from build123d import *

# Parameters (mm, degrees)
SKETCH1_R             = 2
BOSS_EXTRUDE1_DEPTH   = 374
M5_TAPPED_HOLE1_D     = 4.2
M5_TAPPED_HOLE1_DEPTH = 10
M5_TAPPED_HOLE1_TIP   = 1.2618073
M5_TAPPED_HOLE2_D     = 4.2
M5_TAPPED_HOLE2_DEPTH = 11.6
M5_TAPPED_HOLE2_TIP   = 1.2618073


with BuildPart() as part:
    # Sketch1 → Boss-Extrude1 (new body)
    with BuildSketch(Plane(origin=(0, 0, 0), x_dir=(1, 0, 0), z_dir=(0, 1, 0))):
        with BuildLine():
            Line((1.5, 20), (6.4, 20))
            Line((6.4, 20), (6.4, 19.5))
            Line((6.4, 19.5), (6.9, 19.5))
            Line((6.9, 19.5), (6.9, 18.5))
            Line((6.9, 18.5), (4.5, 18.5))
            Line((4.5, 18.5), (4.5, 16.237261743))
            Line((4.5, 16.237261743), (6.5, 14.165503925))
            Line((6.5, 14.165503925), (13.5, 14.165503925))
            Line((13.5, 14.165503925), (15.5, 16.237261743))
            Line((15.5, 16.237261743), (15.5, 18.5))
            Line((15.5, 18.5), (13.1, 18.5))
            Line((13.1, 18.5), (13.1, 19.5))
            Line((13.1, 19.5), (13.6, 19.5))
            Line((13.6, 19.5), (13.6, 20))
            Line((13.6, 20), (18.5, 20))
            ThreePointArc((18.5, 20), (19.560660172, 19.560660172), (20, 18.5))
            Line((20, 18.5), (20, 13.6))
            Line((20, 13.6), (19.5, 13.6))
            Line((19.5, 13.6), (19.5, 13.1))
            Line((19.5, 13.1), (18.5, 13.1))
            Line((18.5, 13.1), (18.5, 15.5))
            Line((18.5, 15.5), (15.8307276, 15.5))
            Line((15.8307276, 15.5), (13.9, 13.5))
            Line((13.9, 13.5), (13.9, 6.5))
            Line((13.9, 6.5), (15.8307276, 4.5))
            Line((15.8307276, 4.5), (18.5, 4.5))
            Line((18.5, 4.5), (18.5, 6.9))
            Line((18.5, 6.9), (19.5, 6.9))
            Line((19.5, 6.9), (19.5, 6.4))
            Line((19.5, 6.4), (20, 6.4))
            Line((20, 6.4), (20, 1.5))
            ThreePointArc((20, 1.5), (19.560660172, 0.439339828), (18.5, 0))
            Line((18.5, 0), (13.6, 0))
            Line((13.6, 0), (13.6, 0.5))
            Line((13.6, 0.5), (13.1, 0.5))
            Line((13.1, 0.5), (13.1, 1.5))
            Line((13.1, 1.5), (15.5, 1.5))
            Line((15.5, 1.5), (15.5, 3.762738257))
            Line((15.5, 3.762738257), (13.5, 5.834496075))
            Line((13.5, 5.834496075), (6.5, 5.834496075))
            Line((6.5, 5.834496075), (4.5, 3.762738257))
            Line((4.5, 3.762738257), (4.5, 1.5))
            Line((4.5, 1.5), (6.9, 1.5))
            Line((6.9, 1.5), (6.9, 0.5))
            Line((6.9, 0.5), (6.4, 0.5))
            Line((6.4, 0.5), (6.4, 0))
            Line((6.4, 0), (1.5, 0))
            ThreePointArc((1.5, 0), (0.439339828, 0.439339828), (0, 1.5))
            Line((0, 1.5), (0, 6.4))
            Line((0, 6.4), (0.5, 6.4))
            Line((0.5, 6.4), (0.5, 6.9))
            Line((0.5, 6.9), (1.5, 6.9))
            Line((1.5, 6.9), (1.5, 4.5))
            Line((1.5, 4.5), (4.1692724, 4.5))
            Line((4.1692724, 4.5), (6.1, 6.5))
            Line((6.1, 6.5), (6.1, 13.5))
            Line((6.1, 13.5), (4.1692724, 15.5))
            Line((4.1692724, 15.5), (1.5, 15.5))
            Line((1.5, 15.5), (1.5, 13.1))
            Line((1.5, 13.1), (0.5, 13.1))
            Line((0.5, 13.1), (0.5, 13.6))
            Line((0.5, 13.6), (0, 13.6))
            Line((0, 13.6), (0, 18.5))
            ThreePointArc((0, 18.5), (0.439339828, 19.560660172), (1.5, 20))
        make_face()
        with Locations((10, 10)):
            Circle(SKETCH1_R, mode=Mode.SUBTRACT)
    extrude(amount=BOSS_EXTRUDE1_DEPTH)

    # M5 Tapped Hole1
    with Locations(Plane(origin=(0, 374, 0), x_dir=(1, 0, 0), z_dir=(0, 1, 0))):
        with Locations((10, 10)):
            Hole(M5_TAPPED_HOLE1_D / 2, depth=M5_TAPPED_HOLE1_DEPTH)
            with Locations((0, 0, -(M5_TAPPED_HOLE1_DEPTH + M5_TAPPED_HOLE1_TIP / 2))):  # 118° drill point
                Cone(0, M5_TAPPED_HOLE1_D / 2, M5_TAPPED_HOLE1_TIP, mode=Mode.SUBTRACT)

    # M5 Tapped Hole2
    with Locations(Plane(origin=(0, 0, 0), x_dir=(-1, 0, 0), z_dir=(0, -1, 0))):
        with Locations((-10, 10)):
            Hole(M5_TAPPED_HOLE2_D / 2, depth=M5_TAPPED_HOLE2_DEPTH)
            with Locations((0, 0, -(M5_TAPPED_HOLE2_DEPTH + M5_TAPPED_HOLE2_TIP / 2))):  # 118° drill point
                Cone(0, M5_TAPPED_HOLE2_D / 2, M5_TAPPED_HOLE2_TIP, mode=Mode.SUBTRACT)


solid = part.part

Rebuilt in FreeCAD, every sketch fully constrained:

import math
import FreeCAD as App
import Part
import Sketcher
from FreeCAD import Vector

doc = App.newDocument("Part")
body = doc.addObject("PartDesign::Body", "Body")

# Sketch on XZ plane
sketch1 = body.newObject("Sketcher::SketchObject", "Sketch")
sketch1.AttachmentSupport = (doc.getObject("XZ_Plane"), [""])
sketch1.MapMode = "FlatFace"
sketch1.addGeometry([
    Part.LineSegment(Vector(6.4, -20, 0), Vector(1.5, -20, 0)),  # 0
    Part.ArcOfCircle(Part.Circle(Vector(1.5, -18.5, 0), Vector(0, 0, 1), 1.5), math.radians(180), math.radians(270)),  # 1
    Part.LineSegment(Vector(0, -18.5, 0), Vector(0, -13.6, 0)),  # 2
    Part.LineSegment(Vector(0, -13.6, 0), Vector(0.5, -13.6, 0)),  # 3
    Part.LineSegment(Vector(0.5, -13.6, 0), Vector(0.5, -13.1, 0)),  # 4
    Part.LineSegment(Vector(0.5, -13.1, 0), Vector(1.5, -13.1, 0)),  # 5
    Part.LineSegment(Vector(1.5, -13.1, 0), Vector(1.5, -15.5, 0)),  # 6
    Part.LineSegment(Vector(1.5, -15.5, 0), Vector(4.169272, -15.5, 0)),  # 7
    Part.LineSegment(Vector(4.169272, -15.5, 0), Vector(6.1, -13.5, 0)),  # 8
    Part.LineSegment(Vector(6.1, -13.5, 0), Vector(6.1, -6.5, 0)),  # 9
    Part.LineSegment(Vector(6.1, -6.5, 0), Vector(4.169272, -4.5, 0)),  # 10
    Part.LineSegment(Vector(4.169272, -4.5, 0), Vector(1.5, -4.5, 0)),  # 11
    Part.LineSegment(Vector(1.5, -4.5, 0), Vector(1.5, -6.9, 0)),  # 12
    Part.LineSegment(Vector(1.5, -6.9, 0), Vector(0.5, -6.9, 0)),  # 13
    Part.LineSegment(Vector(0.5, -6.9, 0), Vector(0.5, -6.4, 0)),  # 14
    Part.LineSegment(Vector(0.5, -6.4, 0), Vector(0, -6.4, 0)),  # 15
    Part.LineSegment(Vector(0, -6.4, 0), Vector(0, -1.5, 0)),  # 16
    Part.ArcOfCircle(Part.Circle(Vector(1.5, -1.5, 0), Vector(0, 0, 1), 1.5), math.radians(90), math.radians(180)),  # 17
    Part.LineSegment(Vector(1.5, 0, 0), Vector(6.4, 0, 0)),  # 18
    Part.LineSegment(Vector(6.4, 0, 0), Vector(6.4, -0.5, 0)),  # 19
    Part.LineSegment(Vector(6.4, -0.5, 0), Vector(6.9, -0.5, 0)),  # 20
    Part.LineSegment(Vector(6.9, -0.5, 0), Vector(6.9, -1.5, 0)),  # 21
    Part.LineSegment(Vector(6.9, -1.5, 0), Vector(4.5, -1.5, 0)),  # 22
    Part.LineSegment(Vector(4.5, -1.5, 0), Vector(4.5, -3.762738, 0)),  # 23
    Part.LineSegment(Vector(4.5, -3.762738, 0), Vector(6.5, -5.834496, 0)),  # 24
    Part.LineSegment(Vector(6.5, -5.834496, 0), Vector(13.5, -5.834496, 0)),  # 25
    Part.LineSegment(Vector(13.5, -5.834496, 0), Vector(15.5, -3.762738, 0)),  # 26
    Part.LineSegment(Vector(15.5, -3.762738, 0), Vector(15.5, -1.5, 0)),  # 27
    Part.LineSegment(Vector(15.5, -1.5, 0), Vector(13.1, -1.5, 0)),  # 28
    Part.LineSegment(Vector(13.1, -1.5, 0), Vector(13.1, -0.5, 0)),  # 29
    Part.LineSegment(Vector(13.1, -0.5, 0), Vector(13.6, -0.5, 0)),  # 30
    Part.LineSegment(Vector(13.6, -0.5, 0), Vector(13.6, 0, 0)),  # 31
    Part.LineSegment(Vector(13.6, 0, 0), Vector(18.5, 0, 0)),  # 32
    Part.ArcOfCircle(Part.Circle(Vector(18.5, -1.5, 0), Vector(0, 0, 1), 1.5), math.radians(0), math.radians(90)),  # 33
    Part.LineSegment(Vector(20, -1.5, 0), Vector(20, -6.4, 0)),  # 34
    Part.LineSegment(Vector(20, -6.4, 0), Vector(19.5, -6.4, 0)),  # 35
    Part.LineSegment(Vector(19.5, -6.4, 0), Vector(19.5, -6.9, 0)),  # 36
    Part.LineSegment(Vector(19.5, -6.9, 0), Vector(18.5, -6.9, 0)),  # 37
    Part.LineSegment(Vector(18.5, -6.9, 0), Vector(18.5, -4.5, 0)),  # 38
    Part.LineSegment(Vector(18.5, -4.5, 0), Vector(15.830728, -4.5, 0)),  # 39
    Part.LineSegment(Vector(15.830728, -4.5, 0), Vector(13.9, -6.5, 0)),  # 40
    Part.LineSegment(Vector(13.9, -6.5, 0), Vector(13.9, -13.5, 0)),  # 41
    Part.LineSegment(Vector(13.9, -13.5, 0), Vector(15.830728, -15.5, 0)),  # 42
    Part.LineSegment(Vector(15.830728, -15.5, 0), Vector(18.5, -15.5, 0)),  # 43
    Part.LineSegment(Vector(18.5, -15.5, 0), Vector(18.5, -13.1, 0)),  # 44
    Part.LineSegment(Vector(18.5, -13.1, 0), Vector(19.5, -13.1, 0)),  # 45
    Part.LineSegment(Vector(19.5, -13.1, 0), Vector(19.5, -13.6, 0)),  # 46
    Part.LineSegment(Vector(19.5, -13.6, 0), Vector(20, -13.6, 0)),  # 47
    Part.LineSegment(Vector(20, -13.6, 0), Vector(20, -18.5, 0)),  # 48
    Part.ArcOfCircle(Part.Circle(Vector(18.5, -18.5, 0), Vector(0, 0, 1), 1.5), math.radians(-90), math.radians(0)),  # 49
    Part.LineSegment(Vector(18.5, -20, 0), Vector(13.6, -20, 0)),  # 50
    Part.LineSegment(Vector(13.6, -20, 0), Vector(13.6, -19.5, 0)),  # 51
    Part.LineSegment(Vector(13.6, -19.5, 0), Vector(13.1, -19.5, 0)),  # 52
    Part.LineSegment(Vector(13.1, -19.5, 0), Vector(13.1, -18.5, 0)),  # 53
    Part.LineSegment(Vector(13.1, -18.5, 0), Vector(15.5, -18.5, 0)),  # 54
    Part.LineSegment(Vector(15.5, -18.5, 0), Vector(15.5, -16.237262, 0)),  # 55
    Part.LineSegment(Vector(15.5, -16.237262, 0), Vector(13.5, -14.165504, 0)),  # 56
    Part.LineSegment(Vector(13.5, -14.165504, 0), Vector(6.5, -14.165504, 0)),  # 57
    Part.LineSegment(Vector(6.5, -14.165504, 0), Vector(4.5, -16.237262, 0)),  # 58
    Part.LineSegment(Vector(4.5, -16.237262, 0), Vector(4.5, -18.5, 0)),  # 59
    Part.LineSegment(Vector(4.5, -18.5, 0), Vector(6.9, -18.5, 0)),  # 60
    Part.LineSegment(Vector(6.9, -18.5, 0), Vector(6.9, -19.5, 0)),  # 61
    Part.LineSegment(Vector(6.9, -19.5, 0), Vector(6.4, -19.5, 0)),  # 62
    Part.LineSegment(Vector(6.4, -19.5, 0), Vector(6.4, -20, 0)),  # 63
    Part.Circle(Vector(10, -10, 0), Vector(0, 0, 1), 2),  # 64
], False)
sketch1.addConstraint([
    Sketcher.Constraint("Tangent", 0, 2, 1, 2),
    Sketcher.Constraint("Tangent", 1, 1, 2, 1),
    Sketcher.Constraint("Coincident", 2, 2, 3, 1),
    Sketcher.Constraint("Coincident", 3, 2, 4, 1),
    Sketcher.Constraint("Coincident", 4, 2, 5, 1),
    Sketcher.Constraint("Coincident", 5, 2, 6, 1),
    Sketcher.Constraint("Coincident", 6, 2, 7, 1),
    Sketcher.Constraint("Coincident", 7, 2, 8, 1),
    Sketcher.Constraint("Coincident", 8, 2, 9, 1),
    Sketcher.Constraint("Coincident", 9, 2, 10, 1),
    Sketcher.Constraint("Coincident", 10, 2, 11, 1),
    Sketcher.Constraint("Coincident", 11, 2, 12, 1),
    Sketcher.Constraint("Coincident", 12, 2, 13, 1),
    Sketcher.Constraint("Coincident", 13, 2, 14, 1),
    Sketcher.Constraint("Coincident", 14, 2, 15, 1),
    Sketcher.Constraint("Coincident", 15, 2, 16, 1),
    Sketcher.Constraint("Tangent", 16, 2, 17, 2),
    Sketcher.Constraint("Tangent", 17, 1, 18, 1),
    Sketcher.Constraint("Coincident", 18, 2, 19, 1),
    Sketcher.Constraint("Coincident", 19, 2, 20, 1),
    Sketcher.Constraint("Coincident", 20, 2, 21, 1),
    Sketcher.Constraint("Coincident", 21, 2, 22, 1),
    Sketcher.Constraint("Coincident", 22, 2, 23, 1),
    Sketcher.Constraint("Coincident", 23, 2, 24, 1),
    Sketcher.Constraint("Coincident", 24, 2, 25, 1),
    Sketcher.Constraint("Coincident", 25, 2, 26, 1),
    Sketcher.Constraint("Coincident", 26, 2, 27, 1),
    Sketcher.Constraint("Coincident", 27, 2, 28, 1),
    Sketcher.Constraint("Coincident", 28, 2, 29, 1),
    Sketcher.Constraint("Coincident", 29, 2, 30, 1),
    Sketcher.Constraint("Coincident", 30, 2, 31, 1),
    Sketcher.Constraint("Coincident", 31, 2, 32, 1),
    Sketcher.Constraint("Tangent", 32, 2, 33, 2),
    Sketcher.Constraint("Tangent", 33, 1, 34, 1),
    Sketcher.Constraint("Coincident", 34, 2, 35, 1),
    Sketcher.Constraint("Coincident", 35, 2, 36, 1),
    Sketcher.Constraint("Coincident", 36, 2, 37, 1),
    Sketcher.Constraint("Coincident", 37, 2, 38, 1),
    Sketcher.Constraint("Coincident", 38, 2, 39, 1),
    Sketcher.Constraint("Coincident", 39, 2, 40, 1),
    Sketcher.Constraint("Coincident", 40, 2, 41, 1),
    Sketcher.Constraint("Coincident", 41, 2, 42, 1),
    Sketcher.Constraint("Coincident", 42, 2, 43, 1),
    Sketcher.Constraint("Coincident", 43, 2, 44, 1),
    Sketcher.Constraint("Coincident", 44, 2, 45, 1),
    Sketcher.Constraint("Coincident", 45, 2, 46, 1),
    Sketcher.Constraint("Coincident", 46, 2, 47, 1),
    Sketcher.Constraint("Coincident", 47, 2, 48, 1),
    Sketcher.Constraint("Tangent", 48, 2, 49, 2),
    Sketcher.Constraint("Tangent", 49, 1, 50, 1),
    Sketcher.Constraint("Coincident", 50, 2, 51, 1),
    Sketcher.Constraint("Coincident", 51, 2, 52, 1),
    Sketcher.Constraint("Coincident", 52, 2, 53, 1),
    Sketcher.Constraint("Coincident", 53, 2, 54, 1),
    Sketcher.Constraint("Coincident", 54, 2, 55, 1),
    Sketcher.Constraint("Coincident", 55, 2, 56, 1),
    Sketcher.Constraint("Coincident", 56, 2, 57, 1),
    Sketcher.Constraint("Coincident", 57, 2, 58, 1),
    Sketcher.Constraint("Coincident", 58, 2, 59, 1),
    Sketcher.Constraint("Coincident", 59, 2, 60, 1),
    Sketcher.Constraint("Coincident", 60, 2, 61, 1),
    Sketcher.Constraint("Coincident", 61, 2, 62, 1),
    Sketcher.Constraint("Coincident", 62, 2, 63, 1),
    Sketcher.Constraint("Coincident", 63, 2, 0, 1),
    Sketcher.Constraint("Horizontal", 0),
    Sketcher.Constraint("Vertical", 2),
    Sketcher.Constraint("Horizontal", 3),
    Sketcher.Constraint("Vertical", 4),
    Sketcher.Constraint("Horizontal", 5),
    Sketcher.Constraint("Vertical", 6),
    Sketcher.Constraint("Horizontal", 7),
    Sketcher.Constraint("Vertical", 9),
    Sketcher.Constraint("Horizontal", 11),
    Sketcher.Constraint("Vertical", 12),
    Sketcher.Constraint("Horizontal", 13),
    Sketcher.Constraint("Vertical", 14),
    Sketcher.Constraint("Horizontal", 15),
    Sketcher.Constraint("Vertical", 16),
    Sketcher.Constraint("Horizontal", 18),
    Sketcher.Constraint("Vertical", 19),
    Sketcher.Constraint("Horizontal", 20),
    Sketcher.Constraint("Vertical", 21),
    Sketcher.Constraint("Horizontal", 22),
    Sketcher.Constraint("Vertical", 23),
    Sketcher.Constraint("Horizontal", 25),
    Sketcher.Constraint("Vertical", 27),
    Sketcher.Constraint("Horizontal", 28),
    Sketcher.Constraint("Vertical", 29),
    Sketcher.Constraint("Horizontal", 30),
    Sketcher.Constraint("Vertical", 31),
    Sketcher.Constraint("Horizontal", 32),
    Sketcher.Constraint("Vertical", 34),
    Sketcher.Constraint("Horizontal", 35),
    Sketcher.Constraint("Vertical", 36),
    Sketcher.Constraint("Horizontal", 37),
    Sketcher.Constraint("Vertical", 38),
    Sketcher.Constraint("Horizontal", 39),
    Sketcher.Constraint("Vertical", 41),
    Sketcher.Constraint("Horizontal", 43),
    Sketcher.Constraint("Vertical", 44),
    Sketcher.Constraint("Horizontal", 45),
    Sketcher.Constraint("Vertical", 46),
    Sketcher.Constraint("Horizontal", 47),
    Sketcher.Constraint("Vertical", 48),
    Sketcher.Constraint("Horizontal", 50),
    Sketcher.Constraint("Vertical", 51),
    Sketcher.Constraint("Horizontal", 52),
    Sketcher.Constraint("Vertical", 53),
    Sketcher.Constraint("Horizontal", 54),
    Sketcher.Constraint("Vertical", 55),
    Sketcher.Constraint("Horizontal", 57),
    Sketcher.Constraint("Vertical", 59),
    Sketcher.Constraint("Horizontal", 60),
    Sketcher.Constraint("Vertical", 61),
    Sketcher.Constraint("Horizontal", 62),
    Sketcher.Constraint("Vertical", 63),
    Sketcher.Constraint("Equal", 1, 17),
    Sketcher.Constraint("Equal", 17, 33),
    Sketcher.Constraint("Equal", 33, 49),
    Sketcher.Constraint("PointOnObject", 1, 1, -2),
    Sketcher.Constraint("PointOnObject", 15, 2, -2),
    Sketcher.Constraint("PointOnObject", 17, 1, -1),
    Sketcher.Constraint("PointOnObject", 31, 2, -1),
    Sketcher.Constraint("Parallel", 10, 24),
    Sketcher.Constraint("Parallel", 8, 26),
    Sketcher.Constraint("Parallel", 26, 40),
    Sketcher.Constraint("Parallel", 24, 42),
    Sketcher.Constraint("Parallel", 42, 56),
    Sketcher.Constraint("Parallel", 40, 58),
    Sketcher.Constraint("Horizontal", 1, 3, 49, 3),
    Sketcher.Constraint("Horizontal", 16, 2, 21, 2),
    Sketcher.Constraint("Horizontal", 23, 2, 26, 2),
    Sketcher.Constraint("Horizontal", 22, 2, 27, 2),
    Sketcher.Constraint("Horizontal", 20, 2, 29, 2),
    Sketcher.Constraint("Horizontal", 15, 2, 34, 2),
    Sketcher.Constraint("Horizontal", 13, 2, 36, 2),
    Sketcher.Constraint("Horizontal", 11, 2, 38, 2),
    Sketcher.Constraint("Horizontal", 9, 2, 40, 2),
    Sketcher.Constraint("Horizontal", 8, 2, 41, 2),
    Sketcher.Constraint("Horizontal", 7, 2, 42, 2),
    Sketcher.Constraint("Horizontal", 5, 2, 44, 2),
    Sketcher.Constraint("Horizontal", 3, 2, 46, 2),
    Sketcher.Constraint("Horizontal", 48, 2, 53, 2),
    Sketcher.Constraint("Horizontal", 55, 2, 58, 2),
    Sketcher.Constraint("Horizontal", 54, 2, 59, 2),
    Sketcher.Constraint("Horizontal", 52, 2, 61, 2),
    Sketcher.Constraint("Vertical", 33, 3, 49, 3),
    Sketcher.Constraint("Vertical", 0, 2, 5, 2),
    Sketcher.Constraint("Vertical", 7, 2, 10, 2),
    Sketcher.Constraint("Vertical", 6, 2, 11, 2),
    Sketcher.Constraint("Vertical", 4, 2, 13, 2),
    Sketcher.Constraint("Vertical", 32, 2, 37, 2),
    Sketcher.Constraint("Vertical", 39, 2, 42, 2),
    Sketcher.Constraint("Vertical", 38, 2, 43, 2),
    Sketcher.Constraint("Vertical", 36, 2, 45, 2),
    Sketcher.Constraint("Vertical", 31, 2, 50, 2),
    Sketcher.Constraint("Vertical", 29, 2, 52, 2),
    Sketcher.Constraint("Vertical", 27, 2, 54, 2),
    Sketcher.Constraint("Vertical", 25, 2, 56, 2),
    Sketcher.Constraint("Vertical", 24, 2, 57, 2),
    Sketcher.Constraint("Vertical", 21, 2, 60, 2),
    Sketcher.Constraint("Vertical", 19, 2, 62, 2),
    Sketcher.Constraint("Equal", 15, 20),
    Sketcher.Constraint("Equal", 22, 28),
    Sketcher.Constraint("Equal", 20, 30),
    Sketcher.Constraint("Equal", 18, 32),
    Sketcher.Constraint("Equal", 30, 35),
    Sketcher.Constraint("Equal", 11, 39),
    Sketcher.Constraint("Equal", 50, 2),
    Sketcher.Constraint("Equal", 62, 4),
    Sketcher.Constraint("Equal", 60, 6),
    Sketcher.Constraint("Equal", 57, 9),
    Sketcher.Constraint("Equal", 6, 12),
    Sketcher.Constraint("Equal", 4, 14),
    Sketcher.Constraint("Equal", 2, 16),
    Sketcher.Constraint("Equal", 14, 19),
    Sketcher.Constraint("Equal", 46, 51),
    Sketcher.Constraint("Equal", 27, 55),
    Sketcher.Constraint("Diameter", 64, 4.0),
    Sketcher.Constraint("Radius", 1, 1.5),
    Sketcher.Constraint("DistanceX", 5, 1, 5, 2, 1.0),
    Sketcher.Constraint("DistanceX", 25, 1, 25, 2, 7.0),
    Sketcher.Constraint("DistanceX", 0, 2, 0, 1, 4.9),
    Sketcher.Constraint("DistanceX", 22, 2, 22, 1, 2.4),
    Sketcher.Constraint("DistanceX", -1, 1, 64, 3, 10.0),
    Sketcher.Constraint("DistanceY", 64, 3, -1, 1, 10.0),
    Sketcher.Constraint("DistanceY", 0, 2, -1, 1, 20.0),
    Sketcher.Constraint("DistanceX", -1, 1, 33, 1, 20.0),
    Sketcher.Constraint("DistanceX", -1, 1, 8, 2, 6.1),
    Sketcher.Constraint("DistanceY", 23, 2, 23, 1, 2.262738),
    Sketcher.Constraint("DistanceX", 7, 1, 7, 2, 2.669272),
])
pad1 = body.newObject("PartDesign::Pad", "Pad")
pad1.Profile = sketch1
pad1.Length = 374
pad1.Reversed = True

# Sketch on XZ plane
sketch2 = body.newObject("Sketcher::SketchObject", "Sketch001")
sketch2.AttachmentSupport = (doc.getObject("XZ_Plane"), [""])
sketch2.MapMode = "FlatFace"
sketch2.AttachmentOffset = App.Placement(Vector(0, 0, -374), App.Rotation())
sketch2.addGeometry(Part.Circle(Vector(10, -10, 0), Vector(0, 0, 1), 2.1), False)
sketch2.addConstraint([
    Sketcher.Constraint("Diameter", 0, 4.2),
    Sketcher.Constraint("DistanceX", -1, 1, 0, 3, 10.0),
    Sketcher.Constraint("DistanceY", 0, 3, -1, 1, 10.0),
])
doc.recompute()
hole = body.newObject("PartDesign::Hole", "Hole")
hole.Profile = sketch2
hole.ThreadType = "None"
hole.Diameter = 4.2
hole.DepthType = "Dimension"
hole.Depth = 10
hole.DrillPoint = "Angled"
hole.DrillPointAngle = 118
hole.Reversed = True

# Sketch on XZ plane
sketch3 = body.newObject("Sketcher::SketchObject", "Sketch002")
sketch3.AttachmentSupport = (doc.getObject("XZ_Plane"), [""])
sketch3.MapMode = "FlatFace"
sketch3.addGeometry(Part.Circle(Vector(10, -10, 0), Vector(0, 0, 1), 2.1), False)
sketch3.addConstraint([
    Sketcher.Constraint("Diameter", 0, 4.2),
    Sketcher.Constraint("DistanceX", -1, 1, 0, 3, 10.0),
    Sketcher.Constraint("DistanceY", 0, 3, -1, 1, 10.0),
])
doc.recompute()
hole2 = body.newObject("PartDesign::Hole", "Hole001")
hole2.Profile = sketch3
hole2.ThreadType = "None"
hole2.Diameter = 4.2
hole2.DepthType = "Dimension"
hole2.Depth = 11.6
hole2.DrillPoint = "Angled"
hole2.DrillPointAngle = 118

doc.recompute()
